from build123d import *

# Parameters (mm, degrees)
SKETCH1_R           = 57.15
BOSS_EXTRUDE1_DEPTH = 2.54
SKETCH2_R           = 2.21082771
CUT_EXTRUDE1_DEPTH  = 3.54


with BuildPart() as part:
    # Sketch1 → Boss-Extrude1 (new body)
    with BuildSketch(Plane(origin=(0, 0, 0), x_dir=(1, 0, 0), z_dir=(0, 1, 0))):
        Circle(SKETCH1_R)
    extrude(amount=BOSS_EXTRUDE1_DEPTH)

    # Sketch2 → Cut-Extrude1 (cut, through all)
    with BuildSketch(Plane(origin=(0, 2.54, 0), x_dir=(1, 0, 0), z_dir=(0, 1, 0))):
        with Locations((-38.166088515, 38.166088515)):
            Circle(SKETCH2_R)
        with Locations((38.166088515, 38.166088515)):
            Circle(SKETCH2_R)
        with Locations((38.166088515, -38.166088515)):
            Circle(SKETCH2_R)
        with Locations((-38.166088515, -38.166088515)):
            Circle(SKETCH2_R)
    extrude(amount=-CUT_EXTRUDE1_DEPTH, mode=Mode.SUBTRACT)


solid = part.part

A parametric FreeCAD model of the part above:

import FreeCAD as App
import Part
import Sketcher

V = App.Vector
Q = App.Units.Quantity

doc = App.newDocument("Part")
params = doc.addObject("Spreadsheet::Sheet", "Params")
for row, (alias, value) in enumerate([
    ("sketch1_diameter", "4.5 in"),
    ("pad1_length", "0.1 in"),
], start=1):
    params.set(f"A{row}", alias)
    params.set(f"B{row}", "=" + value)
    params.setAlias(f"B{row}", alias)

body = doc.addObject("PartDesign::Body", "Body")

sketch1 = doc.addObject("Sketcher::SketchObject", "Sketch")
body.addObject(sketch1)
sketch1.AttachmentSupport = (doc.XZ_Plane, [""])
sketch1.MapMode = "FlatFace"
sketch1.addGeometry(Part.Circle(V(0, 0, 0), V(0, 0, 1), 57.15), False)
sketch1.addConstraint([
    Sketcher.Constraint("Coincident", 0, 3, -1, 1),
    Sketcher.Constraint("Diameter", 0, Q("4.5 in")),
])
sketch1.setExpression("Constraints[1]", "Params.sketch1_diameter")
pad1 = doc.addObject("PartDesign::Pad", "Pad")
body.addObject(pad1)
pad1.Profile = sketch1
pad1.setExpression("Length", "Params.pad1_length")
pad1.Reversed = True

sketch2 = doc.addObject("Sketcher::SketchObject", "Sketch001")
body.addObject(sketch2)
sketch2.AttachmentSupport = (doc.XZ_Plane, [""])
sketch2.MapMode = "FlatFace"
sketch2.AttachmentOffset = App.Placement(V(0, 0, -0.1 * 25.4), App.Rotation())
sketch2.addGeometry([
    Part.Circle(V(-38.166089, -38.166089, 0), V(0, 0, 1), 2.210828),
    Part.Circle(V(38.166089, -38.166089, 0), V(0, 0, 1), 2.210828),
    Part.Circle(V(38.166089, 38.166089, 0), V(0, 0, 1), 2.210828),
    Part.Circle(V(-38.166089, 38.166089, 0), V(0, 0, 1), 2.210828),
], False)
sketch2.addConstraint([
    Sketcher.Constraint("Equal", 0, 1),
    Sketcher.Constraint("Equal", 1, 2),
    Sketcher.Constraint("Equal", 2, 3),
    Sketcher.Constraint("Symmetric", 0, 3, 2, 3, -1, 1),
    Sketcher.Constraint("Symmetric", 1, 3, 3, 3, -1, 1),
    Sketcher.Constraint("Symmetric", 0, 3, 1, 3, -2),
    Sketcher.Constraint("Diameter", 0, 4.421655),
    Sketcher.Constraint("DistanceX", 0, 3, -1, 1, 38.166089),
    Sketcher.Constraint("DistanceY", 0, 3, -1, 1, 38.166089),
])
pocket1 = doc.addObject("PartDesign::Pocket", "Pocket")
body.addObject(pocket1)
pocket1.Profile = sketch2
pocket1.Type = "ThroughAll"
pocket1.Reversed = True

doc.recompute()
